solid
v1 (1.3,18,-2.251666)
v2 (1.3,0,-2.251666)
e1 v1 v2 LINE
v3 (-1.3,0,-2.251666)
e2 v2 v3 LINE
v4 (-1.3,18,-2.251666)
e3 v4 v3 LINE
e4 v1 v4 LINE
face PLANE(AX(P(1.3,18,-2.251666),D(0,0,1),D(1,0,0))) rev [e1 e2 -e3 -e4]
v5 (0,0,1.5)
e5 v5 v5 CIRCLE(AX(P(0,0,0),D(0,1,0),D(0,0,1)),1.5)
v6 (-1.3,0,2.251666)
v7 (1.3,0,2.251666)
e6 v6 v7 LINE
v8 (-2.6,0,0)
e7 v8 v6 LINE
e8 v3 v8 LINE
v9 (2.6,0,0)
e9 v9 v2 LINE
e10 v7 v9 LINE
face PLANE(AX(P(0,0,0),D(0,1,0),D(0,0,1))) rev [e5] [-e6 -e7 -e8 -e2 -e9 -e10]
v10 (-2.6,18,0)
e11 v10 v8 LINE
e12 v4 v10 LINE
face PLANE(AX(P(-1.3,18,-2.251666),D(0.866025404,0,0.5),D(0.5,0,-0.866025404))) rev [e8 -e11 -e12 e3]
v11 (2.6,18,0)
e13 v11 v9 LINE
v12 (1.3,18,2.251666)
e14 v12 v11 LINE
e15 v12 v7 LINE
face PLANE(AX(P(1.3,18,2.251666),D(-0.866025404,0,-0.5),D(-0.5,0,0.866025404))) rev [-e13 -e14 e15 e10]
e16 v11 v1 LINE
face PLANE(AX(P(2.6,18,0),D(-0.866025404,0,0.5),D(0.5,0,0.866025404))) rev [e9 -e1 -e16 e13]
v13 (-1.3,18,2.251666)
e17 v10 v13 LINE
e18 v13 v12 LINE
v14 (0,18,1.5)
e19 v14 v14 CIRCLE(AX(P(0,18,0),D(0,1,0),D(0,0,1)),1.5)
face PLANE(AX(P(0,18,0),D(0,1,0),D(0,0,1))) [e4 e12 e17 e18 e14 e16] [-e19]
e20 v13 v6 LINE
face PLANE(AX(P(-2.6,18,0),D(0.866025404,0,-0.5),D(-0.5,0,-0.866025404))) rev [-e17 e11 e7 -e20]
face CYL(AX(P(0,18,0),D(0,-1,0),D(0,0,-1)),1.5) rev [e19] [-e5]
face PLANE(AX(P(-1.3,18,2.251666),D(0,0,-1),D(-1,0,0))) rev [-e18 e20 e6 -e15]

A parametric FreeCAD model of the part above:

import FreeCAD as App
import Part
import Sketcher
from FreeCAD import Vector
Q = App.Units.Quantity

doc = App.newDocument("Part")
body = doc.addObject("PartDesign::Body", "Body")

sketch1 = body.newObject("Sketcher::SketchObject", "Sketch")
sketch1.AttachmentSupport = (doc.getObject("XZ_Plane"), [""])
sketch1.MapMode = "FlatFace"
sketch1.addGeometry([
    Part.LineSegment(Vector(2.6, 0, 0), Vector(1.3, -2.3, 0)),
    Part.LineSegment(Vector(1.3, -2.3, 0), Vector(-1.3, -2.3, 0)),
    Part.LineSegment(Vector(-1.3, -2.3, 0), Vector(-2.6, 0, 0)),
    Part.LineSegment(Vector(-2.6, 0, 0), Vector(-1.3, 2.3, 0)),
    Part.LineSegment(Vector(-1.3, 2.3, 0), Vector(1.3, 2.3, 0)),
    Part.LineSegment(Vector(1.3, 2.3, 0), Vector(2.6, 0, 0)),
    Part.Circle(Vector(0, 0, 0), Vector(0, 0, 1), 1.5),
], False)
sketch1.addConstraint([
    Sketcher.Constraint("Coincident", 0, 2, 1, 1),
    Sketcher.Constraint("Coincident", 1, 2, 2, 1),
    Sketcher.Constraint("Coincident", 2, 2, 3, 1),
    Sketcher.Constraint("Coincident", 3, 2, 4, 1),
    Sketcher.Constraint("Coincident", 4, 2, 5, 1),
    Sketcher.Constraint("Coincident", 5, 2, 0, 1),
    Sketcher.Constraint("Horizontal", 1),
    Sketcher.Constraint("Horizontal", 4),
    Sketcher.Constraint("Coincident", 6, 3, -1, 1),
    Sketcher.Constraint("Symmetric", 0, 2, 3, 2, -1, 1),
    Sketcher.Constraint("Symmetric", 2, 2, 5, 2, -1, 1),
    Sketcher.Constraint("PointOnObject", 2, 2, -1),
    Sketcher.Constraint("Parallel", 2, 5),
    Sketcher.Constraint("Vertical", 1, 2, 3, 2),
    Sketcher.Constraint("Diameter", 6, 3.0),
    Sketcher.Constraint("Angle", 0, Q("-120 deg")),
    Sketcher.Constraint("DistanceX", 1, 2, 1, 1, 2.6),
    Sketcher.Constraint("Distance", 0, 2.6),
])
pad1 = body.newObject("PartDesign::Pad", "Pad")
pad1.Profile = sketch1
pad1.Length = 18
pad1.Reversed = True

doc.recompute()
